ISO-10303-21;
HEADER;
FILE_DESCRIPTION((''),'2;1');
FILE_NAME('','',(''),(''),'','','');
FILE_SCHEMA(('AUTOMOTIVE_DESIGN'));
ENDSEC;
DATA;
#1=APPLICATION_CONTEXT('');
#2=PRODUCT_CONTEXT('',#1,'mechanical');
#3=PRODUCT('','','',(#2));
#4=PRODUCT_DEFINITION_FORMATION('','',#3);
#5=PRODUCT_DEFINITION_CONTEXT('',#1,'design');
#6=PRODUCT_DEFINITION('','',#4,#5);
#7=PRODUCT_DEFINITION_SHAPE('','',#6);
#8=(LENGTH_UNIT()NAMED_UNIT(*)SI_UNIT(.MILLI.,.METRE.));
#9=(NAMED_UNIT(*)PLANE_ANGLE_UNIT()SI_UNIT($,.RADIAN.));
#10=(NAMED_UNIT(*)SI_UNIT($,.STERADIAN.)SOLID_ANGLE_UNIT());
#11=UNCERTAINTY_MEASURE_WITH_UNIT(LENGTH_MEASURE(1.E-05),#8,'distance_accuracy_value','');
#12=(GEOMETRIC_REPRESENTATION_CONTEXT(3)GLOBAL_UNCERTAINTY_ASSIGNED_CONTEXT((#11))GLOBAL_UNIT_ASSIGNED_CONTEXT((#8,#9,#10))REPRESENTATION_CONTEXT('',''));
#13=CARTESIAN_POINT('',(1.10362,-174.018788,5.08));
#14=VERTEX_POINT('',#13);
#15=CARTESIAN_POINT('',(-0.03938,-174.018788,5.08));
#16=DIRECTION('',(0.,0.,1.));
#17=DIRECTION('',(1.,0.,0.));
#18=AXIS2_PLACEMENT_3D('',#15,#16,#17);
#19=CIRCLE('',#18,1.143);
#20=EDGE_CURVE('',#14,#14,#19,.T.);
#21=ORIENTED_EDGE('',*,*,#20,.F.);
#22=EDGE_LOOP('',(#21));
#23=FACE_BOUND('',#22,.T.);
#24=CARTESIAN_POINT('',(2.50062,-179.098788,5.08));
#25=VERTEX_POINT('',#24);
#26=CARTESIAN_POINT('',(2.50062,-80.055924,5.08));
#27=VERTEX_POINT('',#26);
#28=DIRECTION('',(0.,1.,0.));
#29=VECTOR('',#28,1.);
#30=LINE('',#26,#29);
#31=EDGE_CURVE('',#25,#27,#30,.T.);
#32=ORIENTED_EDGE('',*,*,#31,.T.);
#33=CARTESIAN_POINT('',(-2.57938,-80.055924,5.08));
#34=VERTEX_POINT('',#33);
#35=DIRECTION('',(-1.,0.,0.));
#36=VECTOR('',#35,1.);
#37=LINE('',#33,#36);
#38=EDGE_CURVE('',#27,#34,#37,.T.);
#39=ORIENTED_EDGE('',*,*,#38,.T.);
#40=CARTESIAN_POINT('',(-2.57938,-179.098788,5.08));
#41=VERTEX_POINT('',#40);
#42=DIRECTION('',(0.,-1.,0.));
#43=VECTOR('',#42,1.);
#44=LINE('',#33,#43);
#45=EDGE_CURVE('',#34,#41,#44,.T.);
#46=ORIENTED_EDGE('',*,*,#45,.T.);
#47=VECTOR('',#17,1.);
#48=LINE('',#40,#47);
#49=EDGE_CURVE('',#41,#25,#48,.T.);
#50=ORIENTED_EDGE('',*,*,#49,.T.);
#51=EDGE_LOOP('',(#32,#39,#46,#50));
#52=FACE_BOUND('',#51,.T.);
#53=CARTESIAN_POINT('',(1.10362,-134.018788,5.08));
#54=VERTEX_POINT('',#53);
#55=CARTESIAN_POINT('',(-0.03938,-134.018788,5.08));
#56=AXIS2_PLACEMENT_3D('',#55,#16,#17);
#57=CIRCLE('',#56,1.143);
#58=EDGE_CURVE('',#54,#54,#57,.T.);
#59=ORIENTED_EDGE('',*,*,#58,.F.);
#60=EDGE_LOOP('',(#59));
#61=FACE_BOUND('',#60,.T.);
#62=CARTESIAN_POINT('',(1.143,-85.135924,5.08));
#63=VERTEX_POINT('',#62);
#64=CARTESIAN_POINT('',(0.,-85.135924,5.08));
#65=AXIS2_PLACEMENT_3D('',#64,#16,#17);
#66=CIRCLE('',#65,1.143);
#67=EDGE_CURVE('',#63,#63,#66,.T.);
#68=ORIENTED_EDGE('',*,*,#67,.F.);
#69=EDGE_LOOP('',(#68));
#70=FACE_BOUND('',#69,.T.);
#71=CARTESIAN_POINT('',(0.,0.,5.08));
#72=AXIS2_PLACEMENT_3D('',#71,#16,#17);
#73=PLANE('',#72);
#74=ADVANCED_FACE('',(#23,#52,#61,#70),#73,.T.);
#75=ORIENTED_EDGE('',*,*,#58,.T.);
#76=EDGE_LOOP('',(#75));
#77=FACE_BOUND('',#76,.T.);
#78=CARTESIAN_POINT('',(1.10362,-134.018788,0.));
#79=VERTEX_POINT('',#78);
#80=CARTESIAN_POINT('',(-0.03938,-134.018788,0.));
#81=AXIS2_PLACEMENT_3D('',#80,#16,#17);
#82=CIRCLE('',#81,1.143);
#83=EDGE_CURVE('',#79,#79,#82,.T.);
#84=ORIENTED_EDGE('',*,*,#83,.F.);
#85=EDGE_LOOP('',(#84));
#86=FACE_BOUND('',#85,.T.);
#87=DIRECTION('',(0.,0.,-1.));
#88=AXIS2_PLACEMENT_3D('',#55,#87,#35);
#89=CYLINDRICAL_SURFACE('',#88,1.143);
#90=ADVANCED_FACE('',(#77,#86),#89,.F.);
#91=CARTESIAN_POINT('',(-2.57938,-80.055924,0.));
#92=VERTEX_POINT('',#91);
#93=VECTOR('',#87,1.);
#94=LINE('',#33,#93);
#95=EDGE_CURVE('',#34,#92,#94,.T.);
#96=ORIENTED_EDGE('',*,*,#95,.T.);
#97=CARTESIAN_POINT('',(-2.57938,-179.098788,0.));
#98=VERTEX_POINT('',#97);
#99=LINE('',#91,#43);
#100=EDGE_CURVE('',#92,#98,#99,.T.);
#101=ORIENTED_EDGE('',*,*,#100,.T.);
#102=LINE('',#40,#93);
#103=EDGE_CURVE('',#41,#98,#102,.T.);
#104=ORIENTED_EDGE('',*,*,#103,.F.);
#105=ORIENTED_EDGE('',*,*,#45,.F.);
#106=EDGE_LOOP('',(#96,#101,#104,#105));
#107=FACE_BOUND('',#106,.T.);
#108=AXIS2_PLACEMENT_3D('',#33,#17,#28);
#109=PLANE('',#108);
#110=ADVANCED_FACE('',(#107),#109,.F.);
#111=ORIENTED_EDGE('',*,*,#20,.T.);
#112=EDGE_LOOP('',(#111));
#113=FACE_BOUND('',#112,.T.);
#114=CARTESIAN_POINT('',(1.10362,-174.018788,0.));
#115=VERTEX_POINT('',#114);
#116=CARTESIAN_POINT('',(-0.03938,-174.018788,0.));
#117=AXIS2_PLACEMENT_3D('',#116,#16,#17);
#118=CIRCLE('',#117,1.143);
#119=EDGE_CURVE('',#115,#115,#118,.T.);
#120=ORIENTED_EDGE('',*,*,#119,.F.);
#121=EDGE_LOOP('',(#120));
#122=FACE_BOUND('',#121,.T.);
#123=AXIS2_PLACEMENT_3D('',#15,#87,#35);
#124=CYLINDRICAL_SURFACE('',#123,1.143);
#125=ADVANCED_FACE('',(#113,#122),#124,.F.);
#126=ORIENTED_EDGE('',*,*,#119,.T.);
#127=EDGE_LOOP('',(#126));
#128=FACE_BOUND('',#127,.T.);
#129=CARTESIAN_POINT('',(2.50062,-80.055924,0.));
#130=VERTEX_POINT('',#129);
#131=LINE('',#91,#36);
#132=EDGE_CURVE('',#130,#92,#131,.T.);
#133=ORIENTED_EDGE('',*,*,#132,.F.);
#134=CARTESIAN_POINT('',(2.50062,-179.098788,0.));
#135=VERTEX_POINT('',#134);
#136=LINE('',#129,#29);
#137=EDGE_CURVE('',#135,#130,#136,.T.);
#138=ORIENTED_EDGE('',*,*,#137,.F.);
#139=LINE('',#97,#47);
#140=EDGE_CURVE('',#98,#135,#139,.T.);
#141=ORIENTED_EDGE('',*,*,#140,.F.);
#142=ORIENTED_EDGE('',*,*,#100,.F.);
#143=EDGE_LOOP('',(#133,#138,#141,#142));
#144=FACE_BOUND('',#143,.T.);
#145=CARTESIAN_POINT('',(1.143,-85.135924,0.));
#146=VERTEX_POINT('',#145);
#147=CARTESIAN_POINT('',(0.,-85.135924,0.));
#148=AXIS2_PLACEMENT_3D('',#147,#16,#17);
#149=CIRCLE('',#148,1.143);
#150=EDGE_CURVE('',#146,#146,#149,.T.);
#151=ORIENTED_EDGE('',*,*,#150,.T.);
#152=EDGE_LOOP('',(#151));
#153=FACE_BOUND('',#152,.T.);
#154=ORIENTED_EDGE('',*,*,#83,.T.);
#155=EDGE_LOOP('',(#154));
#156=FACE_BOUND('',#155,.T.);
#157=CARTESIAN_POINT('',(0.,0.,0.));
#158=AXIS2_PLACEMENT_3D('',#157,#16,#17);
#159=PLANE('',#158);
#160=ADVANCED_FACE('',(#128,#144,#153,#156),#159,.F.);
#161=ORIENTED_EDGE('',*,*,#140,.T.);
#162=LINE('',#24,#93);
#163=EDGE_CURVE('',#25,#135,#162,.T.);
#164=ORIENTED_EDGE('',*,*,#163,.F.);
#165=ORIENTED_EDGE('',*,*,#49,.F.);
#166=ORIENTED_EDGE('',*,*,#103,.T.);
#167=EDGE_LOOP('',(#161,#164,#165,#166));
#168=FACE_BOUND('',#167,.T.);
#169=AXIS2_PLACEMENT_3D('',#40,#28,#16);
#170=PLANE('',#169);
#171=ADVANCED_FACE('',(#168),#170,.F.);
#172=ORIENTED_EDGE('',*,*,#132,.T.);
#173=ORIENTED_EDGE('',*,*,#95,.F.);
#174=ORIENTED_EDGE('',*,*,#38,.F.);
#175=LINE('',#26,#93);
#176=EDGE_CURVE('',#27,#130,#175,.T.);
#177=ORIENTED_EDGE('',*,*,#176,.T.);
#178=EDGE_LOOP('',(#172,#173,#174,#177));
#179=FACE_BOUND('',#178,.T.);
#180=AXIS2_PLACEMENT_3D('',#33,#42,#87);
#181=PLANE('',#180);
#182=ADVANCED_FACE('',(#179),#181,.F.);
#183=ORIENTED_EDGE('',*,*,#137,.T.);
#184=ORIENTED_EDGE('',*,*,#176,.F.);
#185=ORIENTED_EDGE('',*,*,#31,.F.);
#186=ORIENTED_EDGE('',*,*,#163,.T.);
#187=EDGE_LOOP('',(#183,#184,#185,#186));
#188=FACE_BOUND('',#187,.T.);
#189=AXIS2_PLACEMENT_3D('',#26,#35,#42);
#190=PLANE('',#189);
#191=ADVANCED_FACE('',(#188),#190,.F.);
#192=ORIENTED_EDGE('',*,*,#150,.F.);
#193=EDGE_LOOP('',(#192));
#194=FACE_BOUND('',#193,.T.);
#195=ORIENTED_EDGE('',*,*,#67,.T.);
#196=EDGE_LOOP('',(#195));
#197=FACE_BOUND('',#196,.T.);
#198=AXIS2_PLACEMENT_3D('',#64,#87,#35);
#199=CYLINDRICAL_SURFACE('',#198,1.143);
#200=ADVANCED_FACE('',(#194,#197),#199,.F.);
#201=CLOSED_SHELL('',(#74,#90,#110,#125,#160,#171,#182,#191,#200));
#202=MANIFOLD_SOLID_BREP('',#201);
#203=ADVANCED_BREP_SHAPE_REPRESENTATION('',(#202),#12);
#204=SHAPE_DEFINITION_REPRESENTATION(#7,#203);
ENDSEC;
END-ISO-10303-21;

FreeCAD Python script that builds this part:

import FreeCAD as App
import Part
import Sketcher
Q = App.Units.Quantity

doc = App.newDocument("Part")
body = doc.addObject("PartDesign::Body", "Body")

sketch1 = body.newObject("Sketcher::SketchObject", "Sketch")
sketch1.AttachmentSupport = (doc.getObject("XY_Plane"), [""])
sketch1.MapMode = "FlatFace"
sketch1.addGeometry([
    Part.LineSegment(App.Vector(-2.6, -80.1, 0), App.Vector(-2.6, -179.1, 0)),
    Part.LineSegment(App.Vector(-2.6, -179.1, 0), App.Vector(2.5, -179.1, 0)),
    Part.LineSegment(App.Vector(2.5, -179.1, 0), App.Vector(2.5, -80.1, 0)),
    Part.LineSegment(App.Vector(2.5, -80.1, 0), App.Vector(-2.6, -80.1, 0)),
    Part.Circle(App.Vector(0, -174, 0), App.Vector(0, 0, 1), 1.1),
    Part.Circle(App.Vector(0, -134, 0), App.Vector(0, 0, 1), 1.1),
    Part.Circle(App.Vector(0, -85.1, 0), App.Vector(0, 0, 1), 1.1),
], False)
sketch1.addConstraint([
    Sketcher.Constraint("Coincident", 0, 2, 1, 1),
    Sketcher.Constraint("Coincident", 1, 2, 2, 1),
    Sketcher.Constraint("Coincident", 2, 2, 3, 1),
    Sketcher.Constraint("Coincident", 3, 2, 0, 1),
    Sketcher.Constraint("Vertical", 0),
    Sketcher.Constraint("Horizontal", 1),
    Sketcher.Constraint("Vertical", 2),
    Sketcher.Constraint("Horizontal", 3),
    Sketcher.Constraint("Equal", 4, 5),
    Sketcher.Constraint("Equal", 5, 6),
    Sketcher.Constraint("PointOnObject", 6, 3, -2),
    Sketcher.Constraint("Vertical", 4, 3, 5, 3),
    Sketcher.Constraint("Diameter", 4, Q("0.09 in")),
    Sketcher.Constraint("DistanceX", 1, 1, 1, 2, Q("0.2 in")),
    Sketcher.Constraint("DistanceX", 0, 2, 4, 3, Q("0.1 in")),
    Sketcher.Constraint("DistanceY", 0, 2, 4, 3, Q("0.2 in")),
    Sketcher.Constraint("DistanceY", 6, 3, 2, 2, Q("0.2 in")),
    Sketcher.Constraint("DistanceY", 4, 3, 5, 3, Q("40 mm")),
    Sketcher.Constraint("DistanceY", 0, 2, 0, 1, Q("99.042864 mm")),
    Sketcher.Constraint("DistanceX", 4, 3, -1, 1, Q("0.03938 mm")),
    Sketcher.Constraint("DistanceY", 4, 3, -1, 1, Q("174.018788 mm")),
])
pad1 = body.newObject("PartDesign::Pad", "Pad")
pad1.Profile = sketch1
pad1.Length = Q("0.2 in")

doc.recompute()
